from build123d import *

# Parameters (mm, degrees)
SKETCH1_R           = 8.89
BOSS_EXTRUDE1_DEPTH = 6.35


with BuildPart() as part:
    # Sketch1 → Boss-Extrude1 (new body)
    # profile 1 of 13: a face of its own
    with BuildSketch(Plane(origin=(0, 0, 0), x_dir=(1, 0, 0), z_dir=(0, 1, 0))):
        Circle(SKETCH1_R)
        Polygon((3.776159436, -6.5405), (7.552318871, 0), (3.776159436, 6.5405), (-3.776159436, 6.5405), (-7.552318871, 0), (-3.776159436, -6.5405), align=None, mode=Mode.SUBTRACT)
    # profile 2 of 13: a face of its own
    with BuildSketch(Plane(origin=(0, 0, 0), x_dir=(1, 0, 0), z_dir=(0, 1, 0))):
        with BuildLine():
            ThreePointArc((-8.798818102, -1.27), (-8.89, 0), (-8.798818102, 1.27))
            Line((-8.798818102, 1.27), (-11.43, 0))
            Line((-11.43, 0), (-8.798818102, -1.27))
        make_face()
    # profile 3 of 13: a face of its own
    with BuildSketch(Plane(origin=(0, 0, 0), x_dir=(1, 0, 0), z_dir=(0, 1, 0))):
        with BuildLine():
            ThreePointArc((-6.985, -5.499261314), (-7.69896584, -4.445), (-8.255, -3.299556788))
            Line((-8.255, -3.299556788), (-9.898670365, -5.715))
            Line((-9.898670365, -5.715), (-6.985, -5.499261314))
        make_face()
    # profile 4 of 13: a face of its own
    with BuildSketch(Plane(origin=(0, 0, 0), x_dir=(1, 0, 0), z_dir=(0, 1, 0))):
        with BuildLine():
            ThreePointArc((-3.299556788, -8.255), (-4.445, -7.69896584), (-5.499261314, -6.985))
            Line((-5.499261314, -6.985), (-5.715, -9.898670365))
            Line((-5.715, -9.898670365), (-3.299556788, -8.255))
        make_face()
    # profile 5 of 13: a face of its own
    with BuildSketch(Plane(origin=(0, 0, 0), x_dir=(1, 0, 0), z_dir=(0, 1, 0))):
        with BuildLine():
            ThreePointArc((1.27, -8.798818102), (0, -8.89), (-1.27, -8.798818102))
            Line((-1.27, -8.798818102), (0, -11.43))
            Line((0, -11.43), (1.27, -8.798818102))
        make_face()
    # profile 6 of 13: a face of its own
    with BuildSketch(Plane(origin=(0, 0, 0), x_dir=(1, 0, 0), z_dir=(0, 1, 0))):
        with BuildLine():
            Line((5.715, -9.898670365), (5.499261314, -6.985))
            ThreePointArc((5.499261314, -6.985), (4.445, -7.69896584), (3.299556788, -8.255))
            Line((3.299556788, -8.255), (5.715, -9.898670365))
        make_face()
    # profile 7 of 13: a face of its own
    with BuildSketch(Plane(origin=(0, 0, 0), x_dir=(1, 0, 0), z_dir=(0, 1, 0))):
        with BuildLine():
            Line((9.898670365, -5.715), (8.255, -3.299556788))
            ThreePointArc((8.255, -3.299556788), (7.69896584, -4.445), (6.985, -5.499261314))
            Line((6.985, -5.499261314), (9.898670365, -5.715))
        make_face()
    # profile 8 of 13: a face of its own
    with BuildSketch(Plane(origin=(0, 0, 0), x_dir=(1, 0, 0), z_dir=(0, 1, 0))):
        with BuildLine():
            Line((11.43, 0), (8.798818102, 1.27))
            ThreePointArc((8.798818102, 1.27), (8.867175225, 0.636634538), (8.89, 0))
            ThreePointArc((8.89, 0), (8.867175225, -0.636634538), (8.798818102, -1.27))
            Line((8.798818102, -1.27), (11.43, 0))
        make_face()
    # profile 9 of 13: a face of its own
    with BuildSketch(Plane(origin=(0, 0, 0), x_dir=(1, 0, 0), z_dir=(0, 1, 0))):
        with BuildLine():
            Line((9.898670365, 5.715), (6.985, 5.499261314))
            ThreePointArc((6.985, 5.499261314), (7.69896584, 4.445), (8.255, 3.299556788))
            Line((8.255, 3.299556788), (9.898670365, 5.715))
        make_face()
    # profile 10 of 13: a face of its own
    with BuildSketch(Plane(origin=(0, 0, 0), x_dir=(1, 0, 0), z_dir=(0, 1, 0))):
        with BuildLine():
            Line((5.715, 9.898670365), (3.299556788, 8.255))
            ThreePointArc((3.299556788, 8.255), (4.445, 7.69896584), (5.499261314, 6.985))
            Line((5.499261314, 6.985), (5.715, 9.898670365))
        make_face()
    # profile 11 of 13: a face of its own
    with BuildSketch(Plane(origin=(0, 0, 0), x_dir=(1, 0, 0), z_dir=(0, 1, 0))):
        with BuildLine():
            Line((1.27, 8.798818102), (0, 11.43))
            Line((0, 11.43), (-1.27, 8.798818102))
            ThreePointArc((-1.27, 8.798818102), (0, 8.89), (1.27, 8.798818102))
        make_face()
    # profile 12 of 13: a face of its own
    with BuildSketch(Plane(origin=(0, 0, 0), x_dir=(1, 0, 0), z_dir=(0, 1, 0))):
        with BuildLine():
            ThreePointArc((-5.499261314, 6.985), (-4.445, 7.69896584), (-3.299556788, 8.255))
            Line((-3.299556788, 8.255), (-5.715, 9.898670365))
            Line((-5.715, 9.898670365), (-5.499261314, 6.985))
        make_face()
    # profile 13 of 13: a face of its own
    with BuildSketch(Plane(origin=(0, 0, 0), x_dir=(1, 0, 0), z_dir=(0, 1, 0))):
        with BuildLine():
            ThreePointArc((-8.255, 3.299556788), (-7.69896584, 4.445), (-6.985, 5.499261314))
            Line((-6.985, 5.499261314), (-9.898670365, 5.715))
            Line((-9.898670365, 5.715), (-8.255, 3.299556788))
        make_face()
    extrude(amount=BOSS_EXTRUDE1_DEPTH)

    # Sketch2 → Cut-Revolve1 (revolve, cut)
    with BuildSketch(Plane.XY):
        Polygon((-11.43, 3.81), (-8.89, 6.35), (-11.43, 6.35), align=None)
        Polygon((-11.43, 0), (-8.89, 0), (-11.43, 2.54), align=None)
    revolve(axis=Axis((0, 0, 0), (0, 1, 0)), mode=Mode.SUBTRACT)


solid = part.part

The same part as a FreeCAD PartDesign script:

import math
import FreeCAD as App
import Part
import Sketcher
Q = App.Units.Quantity


def add_polygon(sketch, points):
    """Adds a closed chain of lines whose ends are joined by coincident constraints."""
    first, n = sketch.GeometryCount, len(points)
    for a, b in zip(points, points[1:] + points[:1]):
        sketch.addGeometry(Part.LineSegment(App.Vector(*a, 0), App.Vector(*b, 0)), False)
    for i in range(n):
        sketch.addConstraint(Sketcher.Constraint("Coincident", first + i, 2, first + (i + 1) % n, 1))

doc = App.newDocument("Part")
body = doc.addObject("PartDesign::Body", "Body")

# Sketch on XZ plane
sketch1 = body.newObject("Sketcher::SketchObject", "Sketch")
sketch1.AttachmentSupport = (doc.getObject("XZ_Plane"), [""])
sketch1.MapMode = "FlatFace"
sketch1.addGeometry(Part.ArcOfCircle(Part.Circle(App.Vector(0, 0, 0), App.Vector(0, 0, 1), 8.9), math.radians(-21.79), math.radians(-8.21)), False)  # 0
sketch1.addGeometry(Part.LineSegment(App.Vector(8.3, -3.3, 0), App.Vector(9.9, -5.7, 0)), False)  # 1
sketch1.addGeometry(Part.LineSegment(App.Vector(9.9, -5.7, 0), App.Vector(7, -5.5, 0)), False)  # 2
sketch1.addGeometry(Part.ArcOfCircle(Part.Circle(App.Vector(0, 0, 0), App.Vector(0, 0, 1), 8.9), math.radians(-51.79), math.radians(-38.21)), False)  # 3
sketch1.addGeometry(Part.LineSegment(App.Vector(5.5, -7, 0), App.Vector(5.7, -9.9, 0)), False)  # 4
sketch1.addGeometry(Part.LineSegment(App.Vector(5.7, -9.9, 0), App.Vector(3.3, -8.3, 0)), False)  # 5
sketch1.addGeometry(Part.ArcOfCircle(Part.Circle(App.Vector(0, 0, 0), App.Vector(0, 0, 1), 8.9), math.radians(-81.79), math.radians(-68.21)), False)  # 6
sketch1.addGeometry(Part.LineSegment(App.Vector(1.3, -8.8, 0), App.Vector(0, -11.4, 0)), False)  # 7
sketch1.addGeometry(Part.LineSegment(App.Vector(0, -11.4, 0), App.Vector(-1.3, -8.8, 0)), False)  # 8
sketch1.addGeometry(Part.ArcOfCircle(Part.Circle(App.Vector(0, 0, 0), App.Vector(0, 0, 1), 8.9), math.radians(-111.79), math.radians(-98.21)), False)  # 9
sketch1.addGeometry(Part.LineSegment(App.Vector(-3.3, -8.3, 0), App.Vector(-5.7, -9.9, 0)), False)  # 10
sketch1.addGeometry(Part.LineSegment(App.Vector(-5.7, -9.9, 0), App.Vector(-5.5, -7, 0)), False)  # 11
sketch1.addGeometry(Part.ArcOfCircle(Part.Circle(App.Vector(0, 0, 0), App.Vector(0, 0, 1), 8.9), math.radians(-141.79), math.radians(-128.21)), False)  # 12
sketch1.addGeometry(Part.LineSegment(App.Vector(-7, -5.5, 0), App.Vector(-9.9, -5.7, 0)), False)  # 13
sketch1.addGeometry(Part.LineSegment(App.Vector(-9.9, -5.7, 0), App.Vector(-8.3, -3.3, 0)), False)  # 14
sketch1.addGeometry(Part.ArcOfCircle(Part.Circle(App.Vector(0, 0, 0), App.Vector(0, 0, 1), 8.9), math.radians(-171.79), math.radians(-158.21)), False)  # 15
sketch1.addGeometry(Part.LineSegment(App.Vector(-8.8, -1.3, 0), App.Vector(-11.4, 0, 0)), False)  # 16
sketch1.addGeometry(Part.LineSegment(App.Vector(-11.4, 0, 0), App.Vector(-8.8, 1.3, 0)), False)  # 17
sketch1.addGeometry(Part.ArcOfCircle(Part.Circle(App.Vector(0, 0, 0), App.Vector(0, 0, 1), 8.9), math.radians(158.21), math.radians(171.79)), False)  # 18
sketch1.addGeometry(Part.LineSegment(App.Vector(-8.3, 3.3, 0), App.Vector(-9.9, 5.7, 0)), False)  # 19
sketch1.addGeometry(Part.LineSegment(App.Vector(-9.9, 5.7, 0), App.Vector(-7, 5.5, 0)), False)  # 20
sketch1.addGeometry(Part.ArcOfCircle(Part.Circle(App.Vector(0, 0, 0), App.Vector(0, 0, 1), 8.9), math.radians(128.21), math.radians(141.79)), False)  # 21
sketch1.addGeometry(Part.LineSegment(App.Vector(-5.5, 7, 0), App.Vector(-5.7, 9.9, 0)), False)  # 22
sketch1.addGeometry(Part.LineSegment(App.Vector(-5.7, 9.9, 0), App.Vector(-3.3, 8.3, 0)), False)  # 23
sketch1.addGeometry(Part.ArcOfCircle(Part.Circle(App.Vector(0, 0, 0), App.Vector(0, 0, 1), 8.9), math.radians(98.21), math.radians(111.79)), False)  # 24
sketch1.addGeometry(Part.LineSegment(App.Vector(-1.3, 8.8, 0), App.Vector(0, 11.4, 0)), False)  # 25
sketch1.addGeometry(Part.LineSegment(App.Vector(0, 11.4, 0), App.Vector(1.3, 8.8, 0)), False)  # 26
sketch1.addGeometry(Part.ArcOfCircle(Part.Circle(App.Vector(0, 0, 0), App.Vector(0, 0, 1), 8.9), math.radians(68.21), math.radians(81.79)), False)  # 27
sketch1.addGeometry(Part.LineSegment(App.Vector(3.3, 8.3, 0), App.Vector(5.7, 9.9, 0)), False)  # 28
sketch1.addGeometry(Part.LineSegment(App.Vector(5.7, 9.9, 0), App.Vector(5.5, 7, 0)), False)  # 29
sketch1.addGeometry(Part.ArcOfCircle(Part.Circle(App.Vector(0, 0, 0), App.Vector(0, 0, 1), 8.9), math.radians(38.21), math.radians(51.79)), False)  # 30
sketch1.addGeometry(Part.LineSegment(App.Vector(7, 5.5, 0), App.Vector(9.9, 5.7, 0)), False)  # 31
sketch1.addGeometry(Part.LineSegment(App.Vector(9.9, 5.7, 0), App.Vector(8.3, 3.3, 0)), False)  # 32
sketch1.addGeometry(Part.ArcOfCircle(Part.Circle(App.Vector(0, 0, 0), App.Vector(0, 0, 1), 8.9), math.radians(8.21), math.radians(21.79)), False)  # 33
sketch1.addGeometry(Part.LineSegment(App.Vector(8.8, 1.3, 0), App.Vector(11.4, 0, 0)), False)  # 34
sketch1.addGeometry(Part.LineSegment(App.Vector(11.4, 0, 0), App.Vector(8.8, -1.3, 0)), False)  # 35
add_polygon(sketch1, [(7.6, 0), (3.8, 6.5), (-3.8, 6.5), (-7.6, 0), (-3.8, -6.5), (3.8, -6.5)])  # lines 36-41
sketch1.addConstraint(Sketcher.Constraint("Coincident", 0, 1, 1, 1))
sketch1.addConstraint(Sketcher.Constraint("Coincident", 1, 2, 2, 1))
sketch1.addConstraint(Sketcher.Constraint("Coincident", 2, 2, 3, 2))
sketch1.addConstraint(Sketcher.Constraint("Coincident", 3, 1, 4, 1))
sketch1.addConstraint(Sketcher.Constraint("Coincident", 4, 2, 5, 1))
sketch1.addConstraint(Sketcher.Constraint("Coincident", 5, 2, 6, 2))
sketch1.addConstraint(Sketcher.Constraint("Coincident", 6, 1, 7, 1))
sketch1.addConstraint(Sketcher.Constraint("Coincident", 7, 2, 8, 1))
sketch1.addConstraint(Sketcher.Constraint("Coincident", 8, 2, 9, 2))
sketch1.addConstraint(Sketcher.Constraint("Coincident", 9, 1, 10, 1))
sketch1.addConstraint(Sketcher.Constraint("Coincident", 10, 2, 11, 1))
sketch1.addConstraint(Sketcher.Constraint("Coincident", 11, 2, 12, 2))
sketch1.addConstraint(Sketcher.Constraint("Coincident", 12, 1, 13, 1))
sketch1.addConstraint(Sketcher.Constraint("Coincident", 13, 2, 14, 1))
sketch1.addConstraint(Sketcher.Constraint("Coincident", 14, 2, 15, 2))
sketch1.addConstraint(Sketcher.Constraint("Coincident", 15, 1, 16, 1))
sketch1.addConstraint(Sketcher.Constraint("Coincident", 16, 2, 17, 1))
sketch1.addConstraint(Sketcher.Constraint("Coincident", 17, 2, 18, 2))
sketch1.addConstraint(Sketcher.Constraint("Coincident", 18, 1, 19, 1))
sketch1.addConstraint(Sketcher.Constraint("Coincident", 19, 2, 20, 1))
sketch1.addConstraint(Sketcher.Constraint("Coincident", 20, 2, 21, 2))
sketch1.addConstraint(Sketcher.Constraint("Coincident", 21, 1, 22, 1))
sketch1.addConstraint(Sketcher.Constraint("Coincident", 22, 2, 23, 1))
sketch1.addConstraint(Sketcher.Constraint("Coincident", 23, 2, 24, 2))
sketch1.addConstraint(Sketcher.Constraint("Coincident", 24, 1, 25, 1))
sketch1.addConstraint(Sketcher.Constraint("Coincident", 25, 2, 26, 1))
sketch1.addConstraint(Sketcher.Constraint("Coincident", 26, 2, 27, 2))
sketch1.addConstraint(Sketcher.Constraint("Coincident", 27, 1, 28, 1))
sketch1.addConstraint(Sketcher.Constraint("Coincident", 28, 2, 29, 1))
sketch1.addConstraint(Sketcher.Constraint("Coincident", 29, 2, 30, 2))
sketch1.addConstraint(Sketcher.Constraint("Coincident", 30, 1, 31, 1))
sketch1.addConstraint(Sketcher.Constraint("Coincident", 31, 2, 32, 1))
sketch1.addConstraint(Sketcher.Constraint("Coincident", 32, 2, 33, 2))
sketch1.addConstraint(Sketcher.Constraint("Coincident", 33, 1, 34, 1))
sketch1.addConstraint(Sketcher.Constraint("Coincident", 34, 2, 35, 1))
sketch1.addConstraint(Sketcher.Constraint("Coincident", 35, 2, 0, 2))
sketch1.addConstraint(Sketcher.Constraint("Horizontal", 37))
sketch1.addConstraint(Sketcher.Constraint("Horizontal", 40))
sketch1.addConstraint(Sketcher.Constraint("Coincident", 0, 3, -1, 1))
sketch1.addConstraint(Sketcher.Constraint("Coincident", 3, 3, -1, 1))
sketch1.addConstraint(Sketcher.Constraint("Coincident", 6, 3, -1, 1))
sketch1.addConstraint(Sketcher.Constraint("Coincident", 9, 3, -1, 1))
sketch1.addConstraint(Sketcher.Constraint("Coincident", 12, 3, -1, 1))
sketch1.addConstraint(Sketcher.Constraint("Coincident", 15, 3, -1, 1))
sketch1.addConstraint(Sketcher.Constraint("Coincident", 18, 3, -1, 1))
sketch1.addConstraint(Sketcher.Constraint("Coincident", 21, 3, -1, 1))
sketch1.addConstraint(Sketcher.Constraint("Coincident", 24, 3, -1, 1))
sketch1.addConstraint(Sketcher.Constraint("Coincident", 27, 3, -1, 1))
sketch1.addConstraint(Sketcher.Constraint("Coincident", 30, 3, -1, 1))
sketch1.addConstraint(Sketcher.Constraint("Coincident", 33, 3, -1, 1))
sketch1.addConstraint(Sketcher.Constraint("Equal", 0, 3))
sketch1.addConstraint(Sketcher.Constraint("Equal", 3, 6))
sketch1.addConstraint(Sketcher.Constraint("Equal", 6, 9))
sketch1.addConstraint(Sketcher.Constraint("Equal", 9, 12))
sketch1.addConstraint(Sketcher.Constraint("Equal", 12, 15))
sketch1.addConstraint(Sketcher.Constraint("Equal", 15, 18))
sketch1.addConstraint(Sketcher.Constraint("Equal", 18, 21))
sketch1.addConstraint(Sketcher.Constraint("Equal", 21, 24))
sketch1.addConstraint(Sketcher.Constraint("Equal", 24, 27))
sketch1.addConstraint(Sketcher.Constraint("Equal", 27, 30))
sketch1.addConstraint(Sketcher.Constraint("Equal", 30, 33))
sketch1.addConstraint(Sketcher.Constraint("Symmetric", 1, 2, 19, 2, -1, 1))
sketch1.addConstraint(Sketcher.Constraint("Symmetric", 4, 2, 22, 2, -1, 1))
sketch1.addConstraint(Sketcher.Constraint("Symmetric", 7, 2, 25, 2, -1, 1))
sketch1.addConstraint(Sketcher.Constraint("Symmetric", 10, 2, 28, 2, -1, 1))
sketch1.addConstraint(Sketcher.Constraint("Symmetric", 13, 2, 31, 2, -1, 1))
sketch1.addConstraint(Sketcher.Constraint("Symmetric", 16, 2, 34, 2, -1, 1))
sketch1.addConstraint(Sketcher.Constraint("Symmetric", 36, 2, 39, 2, -1, 1))
sketch1.addConstraint(Sketcher.Constraint("Symmetric", 38, 2, 41, 2, -1, 1))
sketch1.addConstraint(Sketcher.Constraint("Symmetric", 4, 2, 10, 2, -2))
sketch1.addConstraint(Sketcher.Constraint("Symmetric", 1, 2, 13, 2, -2))
sketch1.addConstraint(Sketcher.Constraint("PointOnObject", 7, 2, -2))
sketch1.addConstraint(Sketcher.Constraint("PointOnObject", 16, 2, -1))
sketch1.addConstraint(Sketcher.Constraint("PointOnObject", 38, 2, -1))
sketch1.addConstraint(Sketcher.Constraint("Perpendicular", 1, 10))
sketch1.addConstraint(Sketcher.Constraint("Perpendicular", 2, 11))
sketch1.addConstraint(Sketcher.Constraint("Perpendicular", 4, 13))
sketch1.addConstraint(Sketcher.Constraint("Perpendicular", 5, 14))
sketch1.addConstraint(Sketcher.Constraint("Perpendicular", 7, 16))
sketch1.addConstraint(Sketcher.Constraint("Perpendicular", 8, 17))
sketch1.addConstraint(Sketcher.Constraint("Perpendicular", 10, 19))
sketch1.addConstraint(Sketcher.Constraint("Perpendicular", 11, 20))
sketch1.addConstraint(Sketcher.Constraint("Perpendicular", 13, 22))
sketch1.addConstraint(Sketcher.Constraint("Perpendicular", 14, 23))
sketch1.addConstraint(Sketcher.Constraint("Perpendicular", 16, 25))
sketch1.addConstraint(Sketcher.Constraint("Perpendicular", 17, 26))
sketch1.addConstraint(Sketcher.Constraint("Perpendicular", 19, 28))
sketch1.addConstraint(Sketcher.Constraint("Perpendicular", 20, 29))
sketch1.addConstraint(Sketcher.Constraint("Perpendicular", 22, 31))
sketch1.addConstraint(Sketcher.Constraint("Perpendicular", 23, 32))
sketch1.addConstraint(Sketcher.Constraint("Perpendicular", 25, 34))
sketch1.addConstraint(Sketcher.Constraint("Perpendicular", 26, 35))
sketch1.addConstraint(Sketcher.Constraint("Parallel", 38, 41))
sketch1.addConstraint(Sketcher.Constraint("Horizontal", 6, 1, 8, 2))
sketch1.addConstraint(Sketcher.Constraint("Horizontal", 5, 2, 9, 1))
sketch1.addConstraint(Sketcher.Constraint("Horizontal", 3, 1, 11, 2))
sketch1.addConstraint(Sketcher.Constraint("Vertical", 37, 2, 39, 2))
sketch1.addConstraint(Sketcher.Constraint("Equal", 1, 2))
sketch1.addConstraint(Sketcher.Constraint("Equal", 2, 4))
sketch1.addConstraint(Sketcher.Constraint("Equal", 4, 5))
sketch1.addConstraint(Sketcher.Constraint("Equal", 5, 7))
sketch1.addConstraint(Sketcher.Constraint("Equal", 14, 16))
sketch1.addConstraint(Sketcher.Constraint("Radius", 0, Q("0.35 in")))
sketch1.addConstraint(Sketcher.Constraint("Angle", 36, Q("120 deg")))
sketch1.addConstraint(Sketcher.Constraint("DistanceX", 4, 2, 0, 1, Q("0.1 in")))
sketch1.addConstraint(Sketcher.Constraint("DistanceX", 8, 2, 6, 1, Q("0.1 in")))
sketch1.addConstraint(Sketcher.Constraint("DistanceY", 7, 2, -1, 1, Q("0.45 in")))
sketch1.addConstraint(Sketcher.Constraint("DistanceX", 2, 2, 0, 1, Q("0.05 in")))
sketch1.addConstraint(Sketcher.Constraint("DistanceY", -1, 1, 36, 2, Q("0.2575 in")))
sketch1.addConstraint(Sketcher.Constraint("DistanceX", 37, 2, 37, 1, Q("7.552319 mm")))
pad1 = body.newObject("PartDesign::Pad", "Pad")
pad1.Profile = sketch1
pad1.Length = Q("0.25 in")
pad1.Reversed = True

# Sketch on XY plane
sketch2 = body.newObject("Sketcher::SketchObject", "Sketch001")
sketch2.AttachmentSupport = (doc.getObject("XY_Plane"), [""])
sketch2.MapMode = "FlatFace"
add_polygon(sketch2, [(-11.4, 3.8), (-8.9, 6.3), (-11.4, 6.3)])  # lines 0-2
add_polygon(sketch2, [(-11.4, 0), (-8.9, 0), (-11.4, 2.5)])  # lines 3-5
sketch2.addConstraint(Sketcher.Constraint("Horizontal", 1))
sketch2.addConstraint(Sketcher.Constraint("Vertical", 2))
sketch2.addConstraint(Sketcher.Constraint("Horizontal", 3))
sketch2.addConstraint(Sketcher.Constraint("Vertical", 5))
sketch2.addConstraint(Sketcher.Constraint("PointOnObject", 3, 2, -1))
sketch2.addConstraint(Sketcher.Constraint("Perpendicular", 0, 4))
sketch2.addConstraint(Sketcher.Constraint("Vertical", 0, 2, 3, 2))
sketch2.addConstraint(Sketcher.Constraint("Vertical", 2, 2, 4, 2))
sketch2.addConstraint(Sketcher.Constraint("Equal", 3, 2))
sketch2.addConstraint(Sketcher.Constraint("DistanceX", 1, 2, 1, 1, Q("0.1 in")))
sketch2.addConstraint(Sketcher.Constraint("DistanceX", 0, 2, -1, 1, Q("0.35 in")))
sketch2.addConstraint(Sketcher.Constraint("DistanceY", -1, 1, 0, 2, Q("0.25 in")))
groove = body.newObject("PartDesign::Groove", "Groove")
groove.Profile = sketch2
groove.ReferenceAxis = (sketch2, ["V_Axis"])
groove.Angle = 360

doc.recompute()
